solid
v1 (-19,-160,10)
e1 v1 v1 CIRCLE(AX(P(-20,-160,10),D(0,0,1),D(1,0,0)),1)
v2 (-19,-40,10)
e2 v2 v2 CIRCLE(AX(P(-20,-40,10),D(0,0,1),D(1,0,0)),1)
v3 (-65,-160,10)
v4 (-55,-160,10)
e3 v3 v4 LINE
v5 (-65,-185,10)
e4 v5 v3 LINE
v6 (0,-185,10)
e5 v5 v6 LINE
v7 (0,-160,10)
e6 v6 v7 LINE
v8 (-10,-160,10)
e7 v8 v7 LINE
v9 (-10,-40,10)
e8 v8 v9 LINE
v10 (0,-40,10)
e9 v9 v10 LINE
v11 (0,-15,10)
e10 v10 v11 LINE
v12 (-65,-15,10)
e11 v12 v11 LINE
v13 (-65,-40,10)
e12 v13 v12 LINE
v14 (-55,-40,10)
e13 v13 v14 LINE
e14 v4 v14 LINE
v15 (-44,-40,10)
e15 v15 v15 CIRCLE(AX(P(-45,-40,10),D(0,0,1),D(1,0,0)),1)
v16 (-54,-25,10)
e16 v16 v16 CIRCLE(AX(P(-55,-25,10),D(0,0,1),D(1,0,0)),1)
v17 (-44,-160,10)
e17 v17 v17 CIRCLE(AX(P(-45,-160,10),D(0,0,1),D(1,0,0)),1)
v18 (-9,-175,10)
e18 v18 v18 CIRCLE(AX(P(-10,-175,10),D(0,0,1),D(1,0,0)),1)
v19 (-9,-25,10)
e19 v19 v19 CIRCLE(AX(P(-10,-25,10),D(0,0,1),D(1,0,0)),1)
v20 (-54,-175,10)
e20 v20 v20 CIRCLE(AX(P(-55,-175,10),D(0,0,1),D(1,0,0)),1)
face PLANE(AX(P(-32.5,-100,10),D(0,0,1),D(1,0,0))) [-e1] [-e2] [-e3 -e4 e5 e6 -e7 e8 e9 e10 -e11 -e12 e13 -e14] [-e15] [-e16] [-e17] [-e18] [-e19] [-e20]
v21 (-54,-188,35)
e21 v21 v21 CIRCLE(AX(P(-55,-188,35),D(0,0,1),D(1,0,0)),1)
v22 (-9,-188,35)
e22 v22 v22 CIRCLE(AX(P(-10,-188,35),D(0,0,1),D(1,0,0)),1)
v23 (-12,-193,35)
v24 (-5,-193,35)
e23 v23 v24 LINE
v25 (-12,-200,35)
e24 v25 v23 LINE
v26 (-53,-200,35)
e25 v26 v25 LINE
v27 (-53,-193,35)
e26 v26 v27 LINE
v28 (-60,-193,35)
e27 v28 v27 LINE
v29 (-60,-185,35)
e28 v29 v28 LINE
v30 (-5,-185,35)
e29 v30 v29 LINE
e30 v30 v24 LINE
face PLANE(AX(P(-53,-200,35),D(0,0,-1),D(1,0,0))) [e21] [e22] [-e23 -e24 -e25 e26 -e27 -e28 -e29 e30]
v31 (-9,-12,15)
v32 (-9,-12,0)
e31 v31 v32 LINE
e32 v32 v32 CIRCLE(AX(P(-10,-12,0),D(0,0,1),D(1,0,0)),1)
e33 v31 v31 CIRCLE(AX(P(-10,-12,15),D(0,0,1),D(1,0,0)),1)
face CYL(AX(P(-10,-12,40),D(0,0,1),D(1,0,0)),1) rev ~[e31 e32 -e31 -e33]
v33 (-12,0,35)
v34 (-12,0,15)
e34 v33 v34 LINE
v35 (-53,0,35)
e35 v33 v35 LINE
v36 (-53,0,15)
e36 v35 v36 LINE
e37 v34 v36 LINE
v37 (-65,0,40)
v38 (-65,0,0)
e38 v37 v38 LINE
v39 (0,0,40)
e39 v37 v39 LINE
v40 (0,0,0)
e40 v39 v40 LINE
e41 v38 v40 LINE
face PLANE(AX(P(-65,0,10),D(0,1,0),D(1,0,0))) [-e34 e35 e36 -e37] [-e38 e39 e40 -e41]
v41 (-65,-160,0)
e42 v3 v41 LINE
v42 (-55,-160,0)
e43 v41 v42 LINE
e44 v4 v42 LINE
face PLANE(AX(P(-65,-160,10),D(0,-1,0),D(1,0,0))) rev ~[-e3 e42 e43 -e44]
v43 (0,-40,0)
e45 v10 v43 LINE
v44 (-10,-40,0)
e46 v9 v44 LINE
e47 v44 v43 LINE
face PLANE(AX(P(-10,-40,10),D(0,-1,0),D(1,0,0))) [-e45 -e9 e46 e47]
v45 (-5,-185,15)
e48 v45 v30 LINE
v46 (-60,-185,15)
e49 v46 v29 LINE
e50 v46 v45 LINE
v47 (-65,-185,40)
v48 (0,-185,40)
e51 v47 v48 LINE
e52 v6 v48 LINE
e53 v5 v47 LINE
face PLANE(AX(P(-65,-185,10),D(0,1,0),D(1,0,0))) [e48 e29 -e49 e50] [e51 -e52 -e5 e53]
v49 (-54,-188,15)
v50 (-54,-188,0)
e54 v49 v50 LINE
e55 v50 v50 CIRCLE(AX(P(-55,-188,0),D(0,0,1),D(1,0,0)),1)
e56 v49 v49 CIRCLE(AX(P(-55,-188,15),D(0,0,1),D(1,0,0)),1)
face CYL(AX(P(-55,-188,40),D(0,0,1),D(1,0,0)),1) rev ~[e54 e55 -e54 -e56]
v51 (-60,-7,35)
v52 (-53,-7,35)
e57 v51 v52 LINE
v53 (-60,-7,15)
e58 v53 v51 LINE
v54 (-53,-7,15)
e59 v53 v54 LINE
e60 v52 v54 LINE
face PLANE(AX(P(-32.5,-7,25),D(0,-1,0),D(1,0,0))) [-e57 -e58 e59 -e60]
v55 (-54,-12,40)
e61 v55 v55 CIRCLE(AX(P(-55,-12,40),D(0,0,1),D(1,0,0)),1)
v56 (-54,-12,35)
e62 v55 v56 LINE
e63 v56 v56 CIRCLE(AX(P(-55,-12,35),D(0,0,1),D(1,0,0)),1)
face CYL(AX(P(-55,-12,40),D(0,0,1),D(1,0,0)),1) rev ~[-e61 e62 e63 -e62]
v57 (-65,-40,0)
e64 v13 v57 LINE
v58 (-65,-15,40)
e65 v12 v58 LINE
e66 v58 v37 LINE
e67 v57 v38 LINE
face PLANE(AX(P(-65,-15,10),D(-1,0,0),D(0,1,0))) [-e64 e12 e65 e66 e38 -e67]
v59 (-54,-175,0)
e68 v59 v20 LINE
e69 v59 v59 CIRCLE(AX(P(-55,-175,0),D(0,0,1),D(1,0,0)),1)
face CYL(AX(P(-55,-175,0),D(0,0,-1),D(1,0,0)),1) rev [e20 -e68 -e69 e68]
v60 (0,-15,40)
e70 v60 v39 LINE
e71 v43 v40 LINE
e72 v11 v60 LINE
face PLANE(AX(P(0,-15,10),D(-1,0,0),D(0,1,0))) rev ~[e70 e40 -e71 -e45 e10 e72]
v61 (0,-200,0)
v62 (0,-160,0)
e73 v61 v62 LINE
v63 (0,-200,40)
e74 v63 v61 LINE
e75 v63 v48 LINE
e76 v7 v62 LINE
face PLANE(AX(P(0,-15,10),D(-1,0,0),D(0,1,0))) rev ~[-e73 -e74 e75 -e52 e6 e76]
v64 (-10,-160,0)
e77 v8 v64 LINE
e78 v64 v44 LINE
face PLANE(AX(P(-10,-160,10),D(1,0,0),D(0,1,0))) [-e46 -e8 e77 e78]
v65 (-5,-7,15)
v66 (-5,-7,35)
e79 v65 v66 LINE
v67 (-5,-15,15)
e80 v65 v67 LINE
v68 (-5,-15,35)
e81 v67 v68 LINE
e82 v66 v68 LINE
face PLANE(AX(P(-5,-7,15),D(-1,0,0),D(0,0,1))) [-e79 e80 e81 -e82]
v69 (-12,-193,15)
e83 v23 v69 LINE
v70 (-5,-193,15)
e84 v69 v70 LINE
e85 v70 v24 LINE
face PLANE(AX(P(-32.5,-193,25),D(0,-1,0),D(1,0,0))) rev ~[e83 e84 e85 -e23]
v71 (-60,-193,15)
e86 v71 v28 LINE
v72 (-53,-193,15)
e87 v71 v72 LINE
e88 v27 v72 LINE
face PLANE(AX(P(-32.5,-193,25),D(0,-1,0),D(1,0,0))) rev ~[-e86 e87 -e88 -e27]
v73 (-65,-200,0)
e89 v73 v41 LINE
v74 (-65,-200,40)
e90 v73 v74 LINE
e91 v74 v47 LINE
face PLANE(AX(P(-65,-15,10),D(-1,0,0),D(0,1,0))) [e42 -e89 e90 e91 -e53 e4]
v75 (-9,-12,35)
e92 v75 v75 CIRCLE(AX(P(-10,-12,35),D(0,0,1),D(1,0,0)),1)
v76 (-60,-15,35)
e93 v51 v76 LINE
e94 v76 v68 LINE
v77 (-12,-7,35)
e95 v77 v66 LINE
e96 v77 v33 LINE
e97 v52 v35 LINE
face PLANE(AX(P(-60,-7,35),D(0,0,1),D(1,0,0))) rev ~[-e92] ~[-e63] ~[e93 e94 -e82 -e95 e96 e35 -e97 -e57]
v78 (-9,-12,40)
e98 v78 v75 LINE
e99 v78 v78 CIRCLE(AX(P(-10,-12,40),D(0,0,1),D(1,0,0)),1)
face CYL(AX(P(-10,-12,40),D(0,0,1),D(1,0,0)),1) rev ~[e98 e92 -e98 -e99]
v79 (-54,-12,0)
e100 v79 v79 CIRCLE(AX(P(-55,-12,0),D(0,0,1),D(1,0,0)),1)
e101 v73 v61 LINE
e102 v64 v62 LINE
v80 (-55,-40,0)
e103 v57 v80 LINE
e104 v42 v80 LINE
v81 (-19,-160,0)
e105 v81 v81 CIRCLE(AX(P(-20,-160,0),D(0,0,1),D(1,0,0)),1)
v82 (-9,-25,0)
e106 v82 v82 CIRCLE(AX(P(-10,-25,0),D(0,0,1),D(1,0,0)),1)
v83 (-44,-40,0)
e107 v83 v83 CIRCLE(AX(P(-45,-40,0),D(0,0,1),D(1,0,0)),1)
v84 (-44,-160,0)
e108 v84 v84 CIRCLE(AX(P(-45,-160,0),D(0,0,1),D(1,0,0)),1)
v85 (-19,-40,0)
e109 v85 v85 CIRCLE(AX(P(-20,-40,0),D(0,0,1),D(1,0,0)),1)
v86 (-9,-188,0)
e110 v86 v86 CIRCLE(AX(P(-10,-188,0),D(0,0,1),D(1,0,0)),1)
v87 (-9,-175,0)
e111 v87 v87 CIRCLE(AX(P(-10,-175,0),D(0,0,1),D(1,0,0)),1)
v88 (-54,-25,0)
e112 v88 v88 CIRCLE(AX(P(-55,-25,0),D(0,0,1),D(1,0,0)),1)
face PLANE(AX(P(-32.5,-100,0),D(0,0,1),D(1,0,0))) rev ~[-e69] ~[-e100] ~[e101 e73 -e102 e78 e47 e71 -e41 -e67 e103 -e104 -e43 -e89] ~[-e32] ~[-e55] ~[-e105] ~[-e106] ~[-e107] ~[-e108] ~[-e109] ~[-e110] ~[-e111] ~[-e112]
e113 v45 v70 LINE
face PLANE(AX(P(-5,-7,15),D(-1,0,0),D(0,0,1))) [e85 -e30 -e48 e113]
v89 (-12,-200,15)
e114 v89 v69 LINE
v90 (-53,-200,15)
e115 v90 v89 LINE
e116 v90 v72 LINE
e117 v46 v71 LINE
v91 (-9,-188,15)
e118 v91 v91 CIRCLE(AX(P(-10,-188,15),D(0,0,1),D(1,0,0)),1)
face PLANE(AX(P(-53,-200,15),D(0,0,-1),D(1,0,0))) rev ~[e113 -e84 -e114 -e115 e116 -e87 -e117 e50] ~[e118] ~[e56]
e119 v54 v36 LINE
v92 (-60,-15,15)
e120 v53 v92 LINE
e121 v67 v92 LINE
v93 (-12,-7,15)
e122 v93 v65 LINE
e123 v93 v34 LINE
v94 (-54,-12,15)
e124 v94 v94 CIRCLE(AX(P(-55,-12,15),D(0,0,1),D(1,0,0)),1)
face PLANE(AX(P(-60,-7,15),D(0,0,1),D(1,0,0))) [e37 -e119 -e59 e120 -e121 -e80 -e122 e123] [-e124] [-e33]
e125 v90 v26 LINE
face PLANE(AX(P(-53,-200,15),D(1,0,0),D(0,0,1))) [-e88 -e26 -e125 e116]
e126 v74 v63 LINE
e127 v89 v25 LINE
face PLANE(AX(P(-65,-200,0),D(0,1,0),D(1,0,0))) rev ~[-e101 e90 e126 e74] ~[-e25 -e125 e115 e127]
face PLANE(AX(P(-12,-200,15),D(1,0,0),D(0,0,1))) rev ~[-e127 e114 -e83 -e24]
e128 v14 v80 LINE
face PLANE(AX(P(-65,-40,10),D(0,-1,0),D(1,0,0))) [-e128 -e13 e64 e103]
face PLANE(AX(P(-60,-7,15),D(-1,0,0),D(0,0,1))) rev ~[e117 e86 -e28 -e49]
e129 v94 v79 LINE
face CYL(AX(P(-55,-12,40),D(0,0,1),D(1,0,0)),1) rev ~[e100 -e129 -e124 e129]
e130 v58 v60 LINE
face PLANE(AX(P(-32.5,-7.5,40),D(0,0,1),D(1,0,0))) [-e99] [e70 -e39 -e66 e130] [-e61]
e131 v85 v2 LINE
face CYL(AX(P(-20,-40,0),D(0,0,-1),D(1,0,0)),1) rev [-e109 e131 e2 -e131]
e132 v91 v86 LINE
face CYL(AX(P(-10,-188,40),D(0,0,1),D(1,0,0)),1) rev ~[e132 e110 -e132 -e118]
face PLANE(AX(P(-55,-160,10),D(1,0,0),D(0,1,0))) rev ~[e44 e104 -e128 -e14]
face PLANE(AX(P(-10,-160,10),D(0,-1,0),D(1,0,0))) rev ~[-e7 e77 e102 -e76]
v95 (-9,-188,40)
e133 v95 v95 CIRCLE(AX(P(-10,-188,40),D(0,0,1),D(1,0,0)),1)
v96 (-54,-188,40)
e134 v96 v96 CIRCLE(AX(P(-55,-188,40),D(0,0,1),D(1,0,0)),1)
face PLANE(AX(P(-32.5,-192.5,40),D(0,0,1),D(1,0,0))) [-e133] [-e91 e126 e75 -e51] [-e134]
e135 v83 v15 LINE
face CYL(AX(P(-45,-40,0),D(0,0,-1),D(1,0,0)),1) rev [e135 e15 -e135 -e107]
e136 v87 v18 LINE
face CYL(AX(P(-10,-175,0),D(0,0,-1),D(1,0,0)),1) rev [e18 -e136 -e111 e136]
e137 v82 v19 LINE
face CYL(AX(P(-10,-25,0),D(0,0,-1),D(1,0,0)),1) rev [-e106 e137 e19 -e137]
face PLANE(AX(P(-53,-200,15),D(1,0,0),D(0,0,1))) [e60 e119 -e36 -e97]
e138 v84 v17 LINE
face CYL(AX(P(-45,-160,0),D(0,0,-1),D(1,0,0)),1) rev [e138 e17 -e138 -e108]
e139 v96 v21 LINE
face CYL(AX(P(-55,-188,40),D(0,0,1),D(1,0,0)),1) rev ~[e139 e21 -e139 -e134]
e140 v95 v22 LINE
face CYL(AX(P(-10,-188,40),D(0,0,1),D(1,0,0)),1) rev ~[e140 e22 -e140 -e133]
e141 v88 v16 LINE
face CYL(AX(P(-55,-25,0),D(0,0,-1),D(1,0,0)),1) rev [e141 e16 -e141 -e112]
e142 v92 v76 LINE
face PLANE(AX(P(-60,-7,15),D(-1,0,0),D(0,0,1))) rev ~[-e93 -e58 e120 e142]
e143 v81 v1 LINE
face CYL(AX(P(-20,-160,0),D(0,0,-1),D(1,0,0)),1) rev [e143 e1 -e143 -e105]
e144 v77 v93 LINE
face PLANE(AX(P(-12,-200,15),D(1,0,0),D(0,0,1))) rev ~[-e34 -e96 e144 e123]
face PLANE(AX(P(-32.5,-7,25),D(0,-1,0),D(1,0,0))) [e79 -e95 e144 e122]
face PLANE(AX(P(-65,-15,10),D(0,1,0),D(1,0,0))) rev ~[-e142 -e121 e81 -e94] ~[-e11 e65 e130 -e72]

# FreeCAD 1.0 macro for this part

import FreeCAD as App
import Part
import Sketcher
from FreeCAD import Vector

doc = App.newDocument("Part")
body = doc.addObject("PartDesign::Body", "Body")

sketch1 = body.newObject("Sketcher::SketchObject", "Sketch")
sketch1.AttachmentSupport = (doc.getObject("XY_Plane"), [""])
sketch1.MapMode = "FlatFace"
sketch1.addGeometry(Part.LineSegment(Vector(-65, 0, 0), Vector(-65, -200, 0)), False)
sketch1.addGeometry(Part.LineSegment(Vector(-65, -200, 0), Vector(0, -200, 0)), False)
sketch1.addGeometry(Part.LineSegment(Vector(0, -200, 0), Vector(0, 0, 0)), False)
sketch1.addGeometry(Part.LineSegment(Vector(0, 0, 0), Vector(-65, 0, 0)), False)
sketch1.addGeometry(Part.Circle(Vector(-55, -175, 0), Vector(0, 0, 1), 1), False)
sketch1.addGeometry(Part.Circle(Vector(-45, -160, 0), Vector(0, 0, 1), 1), False)
sketch1.addGeometry(Part.Circle(Vector(-20, -160, 0), Vector(0, 0, 1), 1), False)
sketch1.addGeometry(Part.Circle(Vector(-10, -175, 0), Vector(0, 0, 1), 1), False)
sketch1.addGeometry(Part.Circle(Vector(-55, -25, 0), Vector(0, 0, 1), 1), False)
sketch1.addGeometry(Part.Circle(Vector(-45, -40, 0), Vector(0, 0, 1), 1), False)
sketch1.addGeometry(Part.Circle(Vector(-20, -40, 0), Vector(0, 0, 1), 1), False)
sketch1.addGeometry(Part.Circle(Vector(-10, -25, 0), Vector(0, 0, 1), 1), False)
sketch1.addConstraint(Sketcher.Constraint("Coincident", 0, 2, 1, 1))
sketch1.addConstraint(Sketcher.Constraint("Coincident", 1, 2, 2, 1))
sketch1.addConstraint(Sketcher.Constraint("Coincident", 2, 2, 3, 1))
sketch1.addConstraint(Sketcher.Constraint("Coincident", 3, 2, 0, 1))
sketch1.addConstraint(Sketcher.Constraint("Vertical", 0))
sketch1.addConstraint(Sketcher.Constraint("Horizontal", 1))
sketch1.addConstraint(Sketcher.Constraint("Vertical", 2))
sketch1.addConstraint(Sketcher.Constraint("Horizontal", 3))
sketch1.addConstraint(Sketcher.Constraint("Coincident", 2, 2, -1, 1))
sketch1.addConstraint(Sketcher.Constraint("Equal", 4, 5))
sketch1.addConstraint(Sketcher.Constraint("Equal", 5, 6))
sketch1.addConstraint(Sketcher.Constraint("Equal", 6, 7))
sketch1.addConstraint(Sketcher.Constraint("Equal", 7, 8))
sketch1.addConstraint(Sketcher.Constraint("Equal", 8, 9))
sketch1.addConstraint(Sketcher.Constraint("Equal", 9, 10))
sketch1.addConstraint(Sketcher.Constraint("Equal", 10, 11))
sketch1.addConstraint(Sketcher.Constraint("Horizontal", 5, 3, 6, 3))
sketch1.addConstraint(Sketcher.Constraint("Horizontal", 4, 3, 7, 3))
sketch1.addConstraint(Sketcher.Constraint("Horizontal", 9, 3, 10, 3))
sketch1.addConstraint(Sketcher.Constraint("Horizontal", 8, 3, 11, 3))
sketch1.addConstraint(Sketcher.Constraint("Vertical", 4, 3, 8, 3))
sketch1.addConstraint(Sketcher.Constraint("Vertical", 5, 3, 9, 3))
sketch1.addConstraint(Sketcher.Constraint("Vertical", 6, 3, 10, 3))
sketch1.addConstraint(Sketcher.Constraint("Vertical", 7, 3, 11, 3))
sketch1.addConstraint(Sketcher.Constraint("Diameter", 4, 2.0))
sketch1.addConstraint(Sketcher.Constraint("DistanceX", 1, 1, 1, 2, 65.0))
sketch1.addConstraint(Sketcher.Constraint("DistanceY", 0, 2, 0, 1, 200.0))
sketch1.addConstraint(Sketcher.Constraint("DistanceX", 4, 3, -1, 1, 55.0))
sketch1.addConstraint(Sketcher.Constraint("DistanceY", 4, 3, -1, 1, 175.0))
sketch1.addConstraint(Sketcher.Constraint("DistanceX", 5, 3, -1, 1, 45.0))
sketch1.addConstraint(Sketcher.Constraint("DistanceY", 5, 3, -1, 1, 160.0))
sketch1.addConstraint(Sketcher.Constraint("DistanceX", 6, 3, -1, 1, 20.0))
sketch1.addConstraint(Sketcher.Constraint("DistanceX", 7, 3, -1, 1, 10.0))
sketch1.addConstraint(Sketcher.Constraint("DistanceY", 8, 3, -1, 1, 25.0))
sketch1.addConstraint(Sketcher.Constraint("DistanceY", 9, 3, -1, 1, 40.0))
pad1 = body.newObject("PartDesign::Pad", "Pad")
pad1.Profile = sketch1
pad1.Length = 10

sketch2 = body.newObject("Sketcher::SketchObject", "Sketch001")
sketch2.AttachmentSupport = (doc.getObject("XY_Plane"), [""])
sketch2.MapMode = "FlatFace"
sketch2.AttachmentOffset = App.Placement(Vector(0, 0, 10), App.Rotation())
sketch2.addGeometry(Part.LineSegment(Vector(-65, 0, 0), Vector(-65, -15, 0)), False)
sketch2.addGeometry(Part.LineSegment(Vector(-65, -15, 0), Vector(0, -15, 0)), False)
sketch2.addGeometry(Part.LineSegment(Vector(0, -15, 0), Vector(0, 0, 0)), False)
sketch2.addGeometry(Part.LineSegment(Vector(0, 0, 0), Vector(-65, 0, 0)), False)
sketch2.addGeometry(Part.LineSegment(Vector(-65, -185, 0), Vector(-65, -200, 0)), False)
sketch2.addGeometry(Part.LineSegment(Vector(-65, -200, 0), Vector(0, -200, 0)), False)
sketch2.addGeometry(Part.LineSegment(Vector(0, -200, 0), Vector(0, -185, 0)), False)
sketch2.addGeometry(Part.LineSegment(Vector(0, -185, 0), Vector(-65, -185, 0)), False)
sketch2.addConstraint(Sketcher.Constraint("Coincident", 0, 2, 1, 1))
sketch2.addConstraint(Sketcher.Constraint("Coincident", 1, 2, 2, 1))
sketch2.addConstraint(Sketcher.Constraint("Coincident", 2, 2, 3, 1))
sketch2.addConstraint(Sketcher.Constraint("Coincident", 3, 2, 0, 1))
sketch2.addConstraint(Sketcher.Constraint("Coincident", 4, 2, 5, 1))
sketch2.addConstraint(Sketcher.Constraint("Coincident", 5, 2, 6, 1))
sketch2.addConstraint(Sketcher.Constraint("Coincident", 6, 2, 7, 1))
sketch2.addConstraint(Sketcher.Constraint("Coincident", 7, 2, 4, 1))
sketch2.addConstraint(Sketcher.Constraint("Vertical", 0))
sketch2.addConstraint(Sketcher.Constraint("Horizontal", 1))
sketch2.addConstraint(Sketcher.Constraint("Vertical", 2))
sketch2.addConstraint(Sketcher.Constraint("Horizontal", 3))
sketch2.addConstraint(Sketcher.Constraint("Vertical", 4))
sketch2.addConstraint(Sketcher.Constraint("Horizontal", 5))
sketch2.addConstraint(Sketcher.Constraint("Vertical", 6))
sketch2.addConstraint(Sketcher.Constraint("Horizontal", 7))
sketch2.addConstraint(Sketcher.Constraint("Coincident", 2, 2, -1, 1))
sketch2.addConstraint(Sketcher.Constraint("PointOnObject", 5, 2, -2))
sketch2.addConstraint(Sketcher.Constraint("Vertical", 3, 2, 4, 2))
sketch2.addConstraint(Sketcher.Constraint("Equal", 2, 4))
sketch2.addConstraint(Sketcher.Constraint("DistanceX", 1, 1, 1, 2, 65.0))
sketch2.addConstraint(Sketcher.Constraint("DistanceY", 0, 2, 0, 1, 15.0))
sketch2.addConstraint(Sketcher.Constraint("DistanceY", 4, 2, -1, 1, 200.0))
pad2 = body.newObject("PartDesign::Pad", "Pad001")
pad2.Profile = sketch2
pad2.Length = 30

sketch3 = body.newObject("Sketcher::SketchObject", "Sketch002")
sketch3.AttachmentSupport = (doc.getObject("XZ_Plane"), [""])
sketch3.MapMode = "FlatFace"
sketch3.AttachmentOffset = App.Placement(Vector(0, 0, 200), App.Rotation())
sketch3.addGeometry(Part.LineSegment(Vector(-53, 35, 0), Vector(-53, 15, 0)), False)
sketch3.addGeometry(Part.LineSegment(Vector(-53, 15, 0), Vector(-12, 15, 0)), False)
sketch3.addGeometry(Part.LineSegment(Vector(-12, 15, 0), Vector(-12, 35, 0)), False)
sketch3.addGeometry(Part.LineSegment(Vector(-12, 35, 0), Vector(-53, 35, 0)), False)
sketch3.addConstraint(Sketcher.Constraint("Coincident", 0, 2, 1, 1))
sketch3.addConstraint(Sketcher.Constraint("Coincident", 1, 2, 2, 1))
sketch3.addConstraint(Sketcher.Constraint("Coincident", 2, 2, 3, 1))
sketch3.addConstraint(Sketcher.Constraint("Coincident", 3, 2, 0, 1))
sketch3.addConstraint(Sketcher.Constraint("Vertical", 0))
sketch3.addConstraint(Sketcher.Constraint("Horizontal", 1))
sketch3.addConstraint(Sketcher.Constraint("Vertical", 2))
sketch3.addConstraint(Sketcher.Constraint("Horizontal", 3))
sketch3.addConstraint(Sketcher.Constraint("DistanceX", 1, 1, 1, 2, 41.0))
sketch3.addConstraint(Sketcher.Constraint("DistanceY", 0, 2, 0, 1, 20.0))
sketch3.addConstraint(Sketcher.Constraint("DistanceX", 0, 2, -1, 1, 53.0))
sketch3.addConstraint(Sketcher.Constraint("DistanceY", -1, 1, 0, 2, 15.0))
pocket1 = body.newObject("PartDesign::Pocket", "Pocket")
pocket1.Profile = sketch3
pocket1.Type = "ThroughAll"

sketch4 = body.newObject("Sketcher::SketchObject", "Sketch003")
sketch4.AttachmentSupport = (doc.getObject("XZ_Plane"), [""])
sketch4.MapMode = "FlatFace"
sketch4.AttachmentOffset = App.Placement(Vector(0, 0, 15), App.Rotation())
sketch4.addGeometry(Part.LineSegment(Vector(-60, 35, 0), Vector(-60, 15, 0)), False)
sketch4.addGeometry(Part.LineSegment(Vector(-60, 15, 0), Vector(-5, 15, 0)), False)
sketch4.addGeometry(Part.LineSegment(Vector(-5, 15, 0), Vector(-5, 35, 0)), False)
sketch4.addGeometry(Part.LineSegment(Vector(-5, 35, 0), Vector(-60, 35, 0)), False)
sketch4.addConstraint(Sketcher.Constraint("Coincident", 0, 2, 1, 1))
sketch4.addConstraint(Sketcher.Constraint("Coincident", 1, 2, 2, 1))
sketch4.addConstraint(Sketcher.Constraint("Coincident", 2, 2, 3, 1))
sketch4.addConstraint(Sketcher.Constraint("Coincident", 3, 2, 0, 1))
sketch4.addConstraint(Sketcher.Constraint("Vertical", 0))
sketch4.addConstraint(Sketcher.Constraint("Horizontal", 1))
sketch4.addConstraint(Sketcher.Constraint("Vertical", 2))
sketch4.addConstraint(Sketcher.Constraint("Horizontal", 3))
sketch4.addConstraint(Sketcher.Constraint("DistanceX", 1, 1, 1, 2, 55.0))
sketch4.addConstraint(Sketcher.Constraint("DistanceY", 0, 2, 0, 1, 20.0))
sketch4.addConstraint(Sketcher.Constraint("DistanceX", 0, 2, -1, 1, 60.0))
sketch4.addConstraint(Sketcher.Constraint("DistanceY", -1, 1, 0, 2, 15.0))
pocket2 = body.newObject("PartDesign::Pocket", "Pocket001")
pocket2.Profile = sketch4
pocket2.Type = "TwoLengths"
pocket2.Length = 178
pocket2.Length2 = 8
pocket2.Reversed = True

sketch5 = body.newObject("Sketcher::SketchObject", "Sketch004")
sketch5.AttachmentSupport = (doc.getObject("XY_Plane"), [""])
sketch5.MapMode = "FlatFace"
sketch5.AttachmentOffset = App.Placement(Vector(0, 0, 40), App.Rotation())
sketch5.addGeometry(Part.Circle(Vector(-55, -12, 0), Vector(0, 0, 1), 1), False)
sketch5.addGeometry(Part.Circle(Vector(-10, -12, 0), Vector(0, 0, 1), 1), False)
sketch5.addGeometry(Part.Circle(Vector(-10, -188, 0), Vector(0, 0, 1), 1), False)
sketch5.addGeometry(Part.Circle(Vector(-55, -188, 0), Vector(0, 0, 1), 1), False)
sketch5.addConstraint(Sketcher.Constraint("Equal", 0, 1))
sketch5.addConstraint(Sketcher.Constraint("Equal", 1, 2))
sketch5.addConstraint(Sketcher.Constraint("Equal", 2, 3))
sketch5.addConstraint(Sketcher.Constraint("Horizontal", 0, 3, 1, 3))
sketch5.addConstraint(Sketcher.Constraint("Horizontal", 2, 3, 3, 3))
sketch5.addConstraint(Sketcher.Constraint("Vertical", 1, 3, 2, 3))
sketch5.addConstraint(Sketcher.Constraint("Vertical", 0, 3, 3, 3))
sketch5.addConstraint(Sketcher.Constraint("Diameter", 0, 2.0))
sketch5.addConstraint(Sketcher.Constraint("DistanceX", 0, 3, -1, 1, 55.0))
sketch5.addConstraint(Sketcher.Constraint("DistanceY", 0, 3, -1, 1, 12.0))
sketch5.addConstraint(Sketcher.Constraint("DistanceX", 1, 3, -1, 1, 10.0))
sketch5.addConstraint(Sketcher.Constraint("DistanceY", 2, 3, -1, 1, 188.0))
pocket3 = body.newObject("PartDesign::Pocket", "Pocket002")
pocket3.Profile = sketch5
pocket3.Type = "ThroughAll"

sketch6 = body.newObject("Sketcher::SketchObject", "Sketch005")
sketch6.AttachmentSupport = (doc.getObject("XY_Plane"), [""])
sketch6.MapMode = "FlatFace"
sketch6.AttachmentOffset = App.Placement(Vector(0, 0, 10), App.Rotation())
sketch6.addGeometry(Part.LineSegment(Vector(-65, -40, 0), Vector(-65, -160, 0)), False)
sketch6.addGeometry(Part.LineSegment(Vector(-65, -160, 0), Vector(-55, -160, 0)), False)
sketch6.addGeometry(Part.LineSegment(Vector(-55, -160, 0), Vector(-55, -40, 0)), False)
sketch6.addGeometry(Part.LineSegment(Vector(-55, -40, 0), Vector(-65, -40, 0)), False)
sketch6.addGeometry(Part.LineSegment(Vector(-10, -40, 0), Vector(-10, -160, 0)), False)
sketch6.addGeometry(Part.LineSegment(Vector(-10, -160, 0), Vector(0, -160, 0)), False)
sketch6.addGeometry(Part.LineSegment(Vector(0, -160, 0), Vector(0, -40, 0)), False)
sketch6.addGeometry(Part.LineSegment(Vector(0, -40, 0), Vector(-10, -40, 0)), False)
sketch6.addConstraint(Sketcher.Constraint("Coincident", 0, 2, 1, 1))
sketch6.addConstraint(Sketcher.Constraint("Coincident", 1, 2, 2, 1))
sketch6.addConstraint(Sketcher.Constraint("Coincident", 2, 2, 3, 1))
sketch6.addConstraint(Sketcher.Constraint("Coincident", 3, 2, 0, 1))
sketch6.addConstraint(Sketcher.Constraint("Coincident", 4, 2, 5, 1))
sketch6.addConstraint(Sketcher.Constraint("Coincident", 5, 2, 6, 1))
sketch6.addConstraint(Sketcher.Constraint("Coincident", 6, 2, 7, 1))
sketch6.addConstraint(Sketcher.Constraint("Coincident", 7, 2, 4, 1))
sketch6.addConstraint(Sketcher.Constraint("Vertical", 0))
sketch6.addConstraint(Sketcher.Constraint("Horizontal", 1))
sketch6.addConstraint(Sketcher.Constraint("Vertical", 2))
sketch6.addConstraint(Sketcher.Constraint("Horizontal", 3))
sketch6.addConstraint(Sketcher.Constraint("Vertical", 4))
sketch6.addConstraint(Sketcher.Constraint("Horizontal", 5))
sketch6.addConstraint(Sketcher.Constraint("Vertical", 6))
sketch6.addConstraint(Sketcher.Constraint("Horizontal", 7))
sketch6.addConstraint(Sketcher.Constraint("PointOnObject", 5, 2, -2))
sketch6.addConstraint(Sketcher.Constraint("Horizontal", 1, 2, 4, 2))
sketch6.addConstraint(Sketcher.Constraint("Horizontal", 3, 2, 6, 2))
sketch6.addConstraint(Sketcher.Constraint("Equal", 3, 5))
sketch6.addConstraint(Sketcher.Constraint("DistanceX", 1, 1, 1, 2, 10.0))
sketch6.addConstraint(Sketcher.Constraint("DistanceY", 0, 2, 0, 1, 120.0))
sketch6.addConstraint(Sketcher.Constraint("DistanceX", 0, 2, -1, 1, 65.0))
sketch6.addConstraint(Sketcher.Constraint("DistanceY", 0, 2, -1, 1, 160.0))
pocket4 = body.newObject("PartDesign::Pocket", "Pocket003")
pocket4.Profile = sketch6
pocket4.Length = 10

doc.recompute()
